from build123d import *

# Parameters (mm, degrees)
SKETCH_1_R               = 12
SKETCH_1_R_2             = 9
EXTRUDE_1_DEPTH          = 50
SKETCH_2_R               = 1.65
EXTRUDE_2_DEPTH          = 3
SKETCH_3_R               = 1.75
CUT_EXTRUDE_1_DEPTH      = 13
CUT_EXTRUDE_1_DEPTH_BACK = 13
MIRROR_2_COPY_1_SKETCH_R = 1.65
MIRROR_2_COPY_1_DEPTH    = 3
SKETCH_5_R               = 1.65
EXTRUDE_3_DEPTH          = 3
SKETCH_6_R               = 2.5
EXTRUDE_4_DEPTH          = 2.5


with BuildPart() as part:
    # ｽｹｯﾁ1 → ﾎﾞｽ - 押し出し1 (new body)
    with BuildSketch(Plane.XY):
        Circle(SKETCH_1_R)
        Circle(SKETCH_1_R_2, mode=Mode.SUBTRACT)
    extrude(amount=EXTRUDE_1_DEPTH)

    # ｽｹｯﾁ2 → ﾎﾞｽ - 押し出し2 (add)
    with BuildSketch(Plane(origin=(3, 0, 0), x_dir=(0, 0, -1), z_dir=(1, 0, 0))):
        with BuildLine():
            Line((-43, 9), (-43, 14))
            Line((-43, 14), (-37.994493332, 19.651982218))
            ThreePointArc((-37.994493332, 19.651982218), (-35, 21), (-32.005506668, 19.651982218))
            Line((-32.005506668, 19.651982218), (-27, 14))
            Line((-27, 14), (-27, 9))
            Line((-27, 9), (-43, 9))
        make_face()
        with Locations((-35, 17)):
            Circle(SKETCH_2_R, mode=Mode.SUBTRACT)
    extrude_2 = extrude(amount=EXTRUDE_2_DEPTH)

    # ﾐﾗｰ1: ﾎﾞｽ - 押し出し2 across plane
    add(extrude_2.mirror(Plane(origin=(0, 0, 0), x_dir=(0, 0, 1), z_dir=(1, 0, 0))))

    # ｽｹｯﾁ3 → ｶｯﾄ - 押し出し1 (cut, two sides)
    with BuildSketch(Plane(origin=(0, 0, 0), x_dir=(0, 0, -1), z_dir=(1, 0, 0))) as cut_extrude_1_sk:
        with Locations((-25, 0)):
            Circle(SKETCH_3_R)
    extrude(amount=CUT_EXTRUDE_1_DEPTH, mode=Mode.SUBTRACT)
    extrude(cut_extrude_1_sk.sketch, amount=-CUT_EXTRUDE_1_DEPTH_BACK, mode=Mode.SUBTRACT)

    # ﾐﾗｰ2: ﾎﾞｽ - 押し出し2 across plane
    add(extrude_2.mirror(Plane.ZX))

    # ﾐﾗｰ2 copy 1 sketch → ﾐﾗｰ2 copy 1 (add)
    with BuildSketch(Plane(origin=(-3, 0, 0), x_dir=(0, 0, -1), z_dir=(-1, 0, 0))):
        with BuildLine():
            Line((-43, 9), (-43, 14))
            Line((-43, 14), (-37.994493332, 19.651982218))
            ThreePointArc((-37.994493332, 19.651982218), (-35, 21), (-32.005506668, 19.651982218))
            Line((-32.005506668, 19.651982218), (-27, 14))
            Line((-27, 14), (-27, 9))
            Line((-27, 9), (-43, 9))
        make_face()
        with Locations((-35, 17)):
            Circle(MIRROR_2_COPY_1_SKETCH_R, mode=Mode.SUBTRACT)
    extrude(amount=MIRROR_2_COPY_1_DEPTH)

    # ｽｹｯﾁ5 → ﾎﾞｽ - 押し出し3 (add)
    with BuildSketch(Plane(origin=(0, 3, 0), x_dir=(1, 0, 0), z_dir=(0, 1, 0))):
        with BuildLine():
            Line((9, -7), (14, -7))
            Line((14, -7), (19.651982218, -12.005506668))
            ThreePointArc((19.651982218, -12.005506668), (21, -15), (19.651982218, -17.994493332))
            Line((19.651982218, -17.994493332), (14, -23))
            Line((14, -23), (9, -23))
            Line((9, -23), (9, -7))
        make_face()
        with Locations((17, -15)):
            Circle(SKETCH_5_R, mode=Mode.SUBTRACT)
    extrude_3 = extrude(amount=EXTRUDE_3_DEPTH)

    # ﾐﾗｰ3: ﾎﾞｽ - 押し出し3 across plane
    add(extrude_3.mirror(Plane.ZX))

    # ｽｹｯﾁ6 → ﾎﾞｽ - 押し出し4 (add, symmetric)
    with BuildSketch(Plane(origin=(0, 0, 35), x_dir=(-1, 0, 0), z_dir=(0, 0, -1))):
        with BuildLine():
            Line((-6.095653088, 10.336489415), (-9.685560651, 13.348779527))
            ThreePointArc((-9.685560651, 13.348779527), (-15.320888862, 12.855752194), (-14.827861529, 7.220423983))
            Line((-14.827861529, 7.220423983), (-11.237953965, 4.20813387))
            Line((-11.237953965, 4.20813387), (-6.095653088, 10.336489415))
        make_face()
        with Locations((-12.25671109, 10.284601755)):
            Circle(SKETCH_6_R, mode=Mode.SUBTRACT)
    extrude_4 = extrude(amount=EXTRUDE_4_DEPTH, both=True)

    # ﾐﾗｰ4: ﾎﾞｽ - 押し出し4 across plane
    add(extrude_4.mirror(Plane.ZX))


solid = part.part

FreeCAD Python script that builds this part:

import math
import FreeCAD as App
import Part
import Sketcher
Q = App.Units.Quantity

doc = App.newDocument("Part")
params = doc.addObject("Spreadsheet::Sheet", "Params")
for row, (alias, value) in enumerate([
    ("sketch1_diameter", "24 mm"),
    ("sketch1_diameter2", "18 mm"),
    ("pad1_length", "50 mm"),
    ("sketch2_radius", "4 mm"),
    ("sketch2_diameter", "3.3 mm"),
    ("sketch2_width", "5 mm"),
    ("sketch2_height", "16 mm"),
    ("pad2_length", "3 mm"),
    ("sketch3_diameter", "3.5 mm"),
    ("sketch4_radius", "4 mm"),
    ("sketch4_diameter", "3.3 mm"),
    ("sketch4_width", "5 mm"),
    ("sketch4_height", "16 mm"),
    ("pad3_length", "3 mm"),
    ("sketch5_radius", "4 mm"),
    ("sketch5_diameter", "3.3 mm"),
    ("sketch5_width", "5 mm"),
    ("sketch5_height", "16 mm"),
    ("pad4_length", "3 mm"),
    ("sketch6_diameter", "5 mm"),
    ("sketch6_radius", "4 mm"),
    ("pad5_length", "5 mm"),
], start=1):
    params.set(f"A{row}", alias)
    params.set(f"B{row}", "=" + value)
    params.setAlias(f"B{row}", alias)

body = doc.addObject("PartDesign::Body", "Body")

# Sketch on XY plane
sketch1 = body.newObject("Sketcher::SketchObject", "Sketch")
sketch1.AttachmentSupport = (doc.getObject("XY_Plane"), [""])
sketch1.MapMode = "FlatFace"
sketch1.addGeometry([
    Part.Circle(App.Vector(0, 0, 0), App.Vector(0, 0, 1), 12),
    Part.Circle(App.Vector(0, 0, 0), App.Vector(0, 0, 1), 9),
], False)
sketch1.addConstraint([
    Sketcher.Constraint("Coincident", 0, 3, -1, 1),
    Sketcher.Constraint("Coincident", 1, 3, -1, 1),
    Sketcher.Constraint("Diameter", 0, Q("24 mm")),
    Sketcher.Constraint("Diameter", 1, Q("18 mm")),
])
sketch1.setExpression("Constraints[2]", "Params.sketch1_diameter")
sketch1.setExpression("Constraints[3]", "Params.sketch1_diameter2")
pad1 = body.newObject("PartDesign::Pad", "Pad")
pad1.Profile = sketch1
pad1.setExpression("Length", "Params.pad1_length")

# Sketch on YZ plane
sketch2 = body.newObject("Sketcher::SketchObject", "Sketch001")
sketch2.AttachmentSupport = (doc.getObject("YZ_Plane"), [""])
sketch2.MapMode = "FlatFace"
sketch2.AttachmentOffset = App.Placement(App.Vector(0, 0, 3), App.Rotation())
sketch2.addGeometry([
    Part.LineSegment(App.Vector(14, 43, 0), App.Vector(9, 43, 0)),  # 0
    Part.LineSegment(App.Vector(9, 43, 0), App.Vector(9, 27, 0)),  # 1
    Part.LineSegment(App.Vector(9, 27, 0), App.Vector(14, 27, 0)),  # 2
    Part.LineSegment(App.Vector(14, 27, 0), App.Vector(19.7, 32, 0)),  # 3
    Part.ArcOfCircle(Part.Circle(App.Vector(17, 35, 0), App.Vector(0, 0, 1), 4), math.radians(-48), math.radians(48)),  # 4
    Part.LineSegment(App.Vector(19.7, 38, 0), App.Vector(14, 43, 0)),  # 5
    Part.Circle(App.Vector(17, 35, 0), App.Vector(0, 0, 1), 1.6),  # 6
], False)
sketch2.addConstraint([
    Sketcher.Constraint("Coincident", 0, 2, 1, 1),
    Sketcher.Constraint("Coincident", 1, 2, 2, 1),
    Sketcher.Constraint("Coincident", 2, 2, 3, 1),
    Sketcher.Constraint("Tangent", 3, 2, 4, 1),
    Sketcher.Constraint("Tangent", 4, 2, 5, 1),
    Sketcher.Constraint("Coincident", 5, 2, 0, 1),
    Sketcher.Constraint("Horizontal", 0),
    Sketcher.Constraint("Vertical", 1),
    Sketcher.Constraint("Horizontal", 2),
    Sketcher.Constraint("Coincident", 6, 3, 4, 3),
    Sketcher.Constraint("Vertical", 3, 2, 4, 2),
    Sketcher.Constraint("Vertical", 2, 2, 5, 2),
    Sketcher.Constraint("Radius", 4, Q("4 mm")),
    Sketcher.Constraint("Diameter", 6, Q("3.3 mm")),
    Sketcher.Constraint("DistanceX", 0, 2, 0, 1, Q("5 mm")),
    Sketcher.Constraint("DistanceY", 1, 2, 1, 1, Q("16 mm")),
    Sketcher.Constraint("DistanceX", -1, 1, 4, 3, Q("17 mm")),
    Sketcher.Constraint("DistanceY", -1, 1, 4, 3, Q("35 mm")),
    Sketcher.Constraint("DistanceX", -1, 1, 0, 2, Q("9 mm")),
])
sketch2.setExpression("Constraints[12]", "Params.sketch2_radius")
sketch2.setExpression("Constraints[13]", "Params.sketch2_diameter")
sketch2.setExpression("Constraints[14]", "Params.sketch2_width")
sketch2.setExpression("Constraints[15]", "Params.sketch2_height")
pad2 = body.newObject("PartDesign::Pad", "Pad001")
pad2.Profile = sketch2
pad2.setExpression("Length", "Params.pad2_length")
doc.recompute()

mirrored = body.newObject("PartDesign::Mirrored", "Mirrored")
mirrored.Originals = [pad2]
mirrored.MirrorPlane = (doc.getObject("YZ_Plane"), [""])
body.Tip = mirrored

# Sketch on YZ plane
sketch3 = body.newObject("Sketcher::SketchObject", "Sketch002")
sketch3.AttachmentSupport = (doc.getObject("YZ_Plane"), [""])
sketch3.MapMode = "FlatFace"
sketch3.addGeometry(Part.Circle(App.Vector(0, 25, 0), App.Vector(0, 0, 1), 1.8), False)
sketch3.addConstraint([
    Sketcher.Constraint("PointOnObject", 0, 3, -2),
    Sketcher.Constraint("Diameter", 0, Q("3.5 mm")),
    Sketcher.Constraint("DistanceY", -1, 1, 0, 3, Q("25 mm")),
])
sketch3.setExpression("Constraints[1]", "Params.sketch3_diameter")
pocket1 = body.newObject("PartDesign::Pocket", "Pocket")
pocket1.Profile = sketch3
pocket1.Type = "ThroughAll"
pocket1.Midplane = True
doc.recompute()

mirrored2 = body.newObject("PartDesign::Mirrored", "Mirrored001")
mirrored2.Originals = [pad2]
mirrored2.MirrorPlane = (doc.getObject("XZ_Plane"), [""])
body.Tip = mirrored2

# Sketch on YZ plane
sketch4 = body.newObject("Sketcher::SketchObject", "Sketch003")
sketch4.AttachmentSupport = (doc.getObject("YZ_Plane"), [""])
sketch4.MapMode = "FlatFace"
sketch4.AttachmentOffset = App.Placement(App.Vector(0, 0, -3), App.Rotation())
sketch4.addGeometry([
    Part.LineSegment(App.Vector(-14, 43, 0), App.Vector(-9, 43, 0)),  # 0
    Part.LineSegment(App.Vector(-9, 43, 0), App.Vector(-9, 27, 0)),  # 1
    Part.LineSegment(App.Vector(-9, 27, 0), App.Vector(-14, 27, 0)),  # 2
    Part.LineSegment(App.Vector(-14, 27, 0), App.Vector(-19.7, 32, 0)),  # 3
    Part.ArcOfCircle(Part.Circle(App.Vector(-17, 35, 0), App.Vector(0, 0, 1), 4), math.radians(132), math.radians(228)),  # 4
    Part.LineSegment(App.Vector(-19.7, 38, 0), App.Vector(-14, 43, 0)),  # 5
    Part.Circle(App.Vector(-17, 35, 0), App.Vector(0, 0, 1), 1.6),  # 6
], False)
sketch4.addConstraint([
    Sketcher.Constraint("Coincident", 0, 2, 1, 1),
    Sketcher.Constraint("Coincident", 1, 2, 2, 1),
    Sketcher.Constraint("Coincident", 2, 2, 3, 1),
    Sketcher.Constraint("Tangent", 3, 2, 4, 2),
    Sketcher.Constraint("Tangent", 4, 1, 5, 1),
    Sketcher.Constraint("Coincident", 5, 2, 0, 1),
    Sketcher.Constraint("Horizontal", 0),
    Sketcher.Constraint("Vertical", 1),
    Sketcher.Constraint("Horizontal", 2),
    Sketcher.Constraint("Coincident", 6, 3, 4, 3),
    Sketcher.Constraint("Vertical", 3, 2, 4, 1),
    Sketcher.Constraint("Vertical", 2, 2, 5, 2),
    Sketcher.Constraint("Radius", 4, Q("4 mm")),
    Sketcher.Constraint("Diameter", 6, Q("3.3 mm")),
    Sketcher.Constraint("DistanceX", 0, 1, 0, 2, Q("5 mm")),
    Sketcher.Constraint("DistanceY", 1, 2, 1, 1, Q("16 mm")),
    Sketcher.Constraint("DistanceX", 4, 3, -1, 1, Q("17 mm")),
    Sketcher.Constraint("DistanceY", -1, 1, 4, 3, Q("35 mm")),
    Sketcher.Constraint("DistanceX", 0, 2, -1, 1, Q("9 mm")),
])
sketch4.setExpression("Constraints[12]", "Params.sketch4_radius")
sketch4.setExpression("Constraints[13]", "Params.sketch4_diameter")
sketch4.setExpression("Constraints[14]", "Params.sketch4_width")
sketch4.setExpression("Constraints[15]", "Params.sketch4_height")
pad3 = body.newObject("PartDesign::Pad", "Pad002")
pad3.Profile = sketch4
pad3.setExpression("Length", "Params.pad3_length")
pad3.Reversed = True

# Sketch on XZ plane
sketch5 = body.newObject("Sketcher::SketchObject", "Sketch004")
sketch5.AttachmentSupport = (doc.getObject("XZ_Plane"), [""])
sketch5.MapMode = "FlatFace"
sketch5.AttachmentOffset = App.Placement(App.Vector(0, 0, -3), App.Rotation())
sketch5.addGeometry([
    Part.LineSegment(App.Vector(14, 7, 0), App.Vector(9, 7, 0)),  # 0
    Part.LineSegment(App.Vector(9, 7, 0), App.Vector(9, 23, 0)),  # 1
    Part.LineSegment(App.Vector(9, 23, 0), App.Vector(14, 23, 0)),  # 2
    Part.LineSegment(App.Vector(14, 23, 0), App.Vector(19.7, 18, 0)),  # 3
    Part.ArcOfCircle(Part.Circle(App.Vector(17, 15, 0), App.Vector(0, 0, 1), 4), math.radians(-48), math.radians(48)),  # 4
    Part.LineSegment(App.Vector(19.7, 12, 0), App.Vector(14, 7, 0)),  # 5
    Part.Circle(App.Vector(17, 15, 0), App.Vector(0, 0, 1), 1.6),  # 6
], False)
sketch5.addConstraint([
    Sketcher.Constraint("Coincident", 0, 2, 1, 1),
    Sketcher.Constraint("Coincident", 1, 2, 2, 1),
    Sketcher.Constraint("Coincident", 2, 2, 3, 1),
    Sketcher.Constraint("Tangent", 3, 2, 4, 2),
    Sketcher.Constraint("Tangent", 4, 1, 5, 1),
    Sketcher.Constraint("Coincident", 5, 2, 0, 1),
    Sketcher.Constraint("Horizontal", 0),
    Sketcher.Constraint("Vertical", 1),
    Sketcher.Constraint("Horizontal", 2),
    Sketcher.Constraint("Coincident", 6, 3, 4, 3),
    Sketcher.Constraint("Vertical", 3, 2, 4, 1),
    Sketcher.Constraint("Vertical", 2, 2, 5, 2),
    Sketcher.Constraint("Radius", 4, Q("4 mm")),
    Sketcher.Constraint("Diameter", 6, Q("3.3 mm")),
    Sketcher.Constraint("DistanceX", 0, 2, 0, 1, Q("5 mm")),
    Sketcher.Constraint("DistanceY", 1, 1, 1, 2, Q("16 mm")),
    Sketcher.Constraint("DistanceX", -1, 1, 4, 3, Q("17 mm")),
    Sketcher.Constraint("DistanceY", -1, 1, 4, 3, Q("15 mm")),
    Sketcher.Constraint("DistanceX", -1, 1, 0, 2, Q("9 mm")),
])
sketch5.setExpression("Constraints[12]", "Params.sketch5_radius")
sketch5.setExpression("Constraints[13]", "Params.sketch5_diameter")
sketch5.setExpression("Constraints[14]", "Params.sketch5_width")
sketch5.setExpression("Constraints[15]", "Params.sketch5_height")
pad4 = body.newObject("PartDesign::Pad", "Pad003")
pad4.Profile = sketch5
pad4.setExpression("Length", "Params.pad4_length")
pad4.Reversed = True
doc.recompute()

mirrored3 = body.newObject("PartDesign::Mirrored", "Mirrored002")
mirrored3.Originals = [pad4]
mirrored3.MirrorPlane = (doc.getObject("XZ_Plane"), [""])
body.Tip = mirrored3

# Sketch on XY plane
sketch6 = body.newObject("Sketcher::SketchObject", "Sketch005")
sketch6.AttachmentSupport = (doc.getObject("XY_Plane"), [""])
sketch6.MapMode = "FlatFace"
sketch6.AttachmentOffset = App.Placement(App.Vector(0, 0, 35), App.Rotation())
sketch6.addGeometry([
    Part.LineSegment(App.Vector(6.1, 10.3, 0), App.Vector(9.7, 13.3, 0)),  # 0
    Part.ArcOfCircle(Part.Circle(App.Vector(12.3, 10.3, 0), App.Vector(0, 0, 1), 4), math.radians(-50), math.radians(130)),  # 1
    Part.LineSegment(App.Vector(14.8, 7.2, 0), App.Vector(11.2, 4.2, 0)),  # 2
    Part.LineSegment(App.Vector(11.2, 4.2, 0), App.Vector(6.1, 10.3, 0)),  # 3
    Part.Circle(App.Vector(12.3, 10.3, 0), App.Vector(0, 0, 1), 2.5),  # 4
], False)
sketch6.addConstraint([
    Sketcher.Constraint("Tangent", 0, 2, 1, 2),
    Sketcher.Constraint("Tangent", 1, 1, 2, 1),
    Sketcher.Constraint("Coincident", 2, 2, 3, 1),
    Sketcher.Constraint("Coincident", 3, 2, 0, 1),
    Sketcher.Constraint("Coincident", 4, 3, 1, 3),
    Sketcher.Constraint("Parallel", 0, 2),
    Sketcher.Constraint("Perpendicular", 2, 3),
    Sketcher.Constraint("Diameter", 4, Q("5 mm")),
    Sketcher.Constraint("Radius", 1, Q("4 mm")),
    Sketcher.Constraint("Angle", 0, Q("40 deg")),
    Sketcher.Constraint("DistanceY", -1, 1, 1, 3, Q("10.284602 mm")),
    Sketcher.Constraint("Distance", 0, Q("4.686292 mm")),
    Sketcher.Constraint("DistanceX", -1, 1, 1, 3, Q("12.256711 mm")),
])
sketch6.setExpression("Constraints[7]", "Params.sketch6_diameter")
sketch6.setExpression("Constraints[8]", "Params.sketch6_radius")
pad5 = body.newObject("PartDesign::Pad", "Pad004")
pad5.Profile = sketch6
pad5.setExpression("Length", "Params.pad5_length")
pad5.Midplane = True
doc.recompute()

mirrored4 = body.newObject("PartDesign::Mirrored", "Mirrored003")
mirrored4.Originals = [pad5]
mirrored4.MirrorPlane = (doc.getObject("XZ_Plane"), [""])
body.Tip = mirrored4

doc.recompute()
